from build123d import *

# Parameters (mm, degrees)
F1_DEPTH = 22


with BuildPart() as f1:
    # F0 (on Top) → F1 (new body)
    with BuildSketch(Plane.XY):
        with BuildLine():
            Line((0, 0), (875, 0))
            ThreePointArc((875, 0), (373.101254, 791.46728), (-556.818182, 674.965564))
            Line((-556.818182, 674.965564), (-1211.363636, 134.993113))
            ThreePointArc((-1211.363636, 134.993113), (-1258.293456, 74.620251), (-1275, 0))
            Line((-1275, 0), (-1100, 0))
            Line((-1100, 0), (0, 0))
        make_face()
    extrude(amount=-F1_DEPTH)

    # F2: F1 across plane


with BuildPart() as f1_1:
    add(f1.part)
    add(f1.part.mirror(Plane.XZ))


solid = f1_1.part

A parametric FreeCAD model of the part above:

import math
import FreeCAD as App
import Part
import Sketcher
from FreeCAD import Vector

doc = App.newDocument("Part")
params = doc.addObject("Spreadsheet::Sheet", "Params")
for row, (alias, value) in enumerate([
    ("sketch1_radius", "875 mm"),
    ("sketch1_width", "2150 mm"),
    ("pad1_length", "22 mm"),
], start=1):
    params.set(f"A{row}", alias)
    params.set(f"B{row}", "=" + value)
    params.setAlias(f"B{row}", alias)

body = doc.addObject("PartDesign::Body", "Body")

sketch1 = body.newObject("Sketcher::SketchObject", "Sketch")
sketch1.AttachmentSupport = (doc.getObject("XY_Plane"), [""])
sketch1.MapMode = "FlatFace"
sketch1.addGeometry([
    Part.ArcOfCircle(Part.Circle(Vector(0, 0, 0), Vector(0, 0, 1), 875), math.radians(0), math.radians(130)),
    Part.LineSegment(Vector(-557, 675, 0), Vector(-1211, 135, 0)),
    Part.ArcOfCircle(Part.Circle(Vector(-1100, 0, 0), Vector(0, 0, 1), 175), math.radians(130), math.radians(180)),
    Part.LineSegment(Vector(-1275, 0, 0), Vector(875, 0, 0)),
], False)
sketch1.addConstraint([
    Sketcher.Constraint("Tangent", 0, 2, 1, 1),
    Sketcher.Constraint("Tangent", 1, 2, 2, 1),
    Sketcher.Constraint("Coincident", 2, 2, 3, 1),
    Sketcher.Constraint("Coincident", 3, 2, 0, 1),
    Sketcher.Constraint("Horizontal", 3),
    Sketcher.Constraint("Coincident", 0, 3, -1, 1),
    Sketcher.Constraint("PointOnObject", 2, 3, -1),
    Sketcher.Constraint("PointOnObject", 2, 2, -1),
    Sketcher.Constraint("Radius", 0, 875.0),
    Sketcher.Constraint("DistanceX", 3, 1, 3, 2, 2150.0),
    Sketcher.Constraint("Radius", 2, 174.999998),
])
sketch1.setExpression("Constraints[8]", "Params.sketch1_radius")
sketch1.setExpression("Constraints[9]", "Params.sketch1_width")
pad1 = body.newObject("PartDesign::Pad", "Pad")
pad1.Profile = sketch1
pad1.setExpression("Length", "Params.pad1_length")
pad1.Reversed = True
body2 = doc.addObject("PartDesign::Body", "Body001")
doc.recompute()

body2.BaseFeature = body
doc.recompute()

mirroring = doc.addObject("Part::Mirroring", "Mirroring")
mirroring.Source = body
mirroring.Base = Vector(0, 0, 0)
mirroring.Normal = Vector(0, -1, 0)
body3 = doc.addObject("PartDesign::Body", "Body002")
body3.BaseFeature = mirroring
boolean = body2.newObject("PartDesign::Boolean", "Boolean")
boolean.Type = "Fuse"
boolean.addObjects([body3])
doc.recompute()
mirroring.Visibility = False

doc.recompute()
